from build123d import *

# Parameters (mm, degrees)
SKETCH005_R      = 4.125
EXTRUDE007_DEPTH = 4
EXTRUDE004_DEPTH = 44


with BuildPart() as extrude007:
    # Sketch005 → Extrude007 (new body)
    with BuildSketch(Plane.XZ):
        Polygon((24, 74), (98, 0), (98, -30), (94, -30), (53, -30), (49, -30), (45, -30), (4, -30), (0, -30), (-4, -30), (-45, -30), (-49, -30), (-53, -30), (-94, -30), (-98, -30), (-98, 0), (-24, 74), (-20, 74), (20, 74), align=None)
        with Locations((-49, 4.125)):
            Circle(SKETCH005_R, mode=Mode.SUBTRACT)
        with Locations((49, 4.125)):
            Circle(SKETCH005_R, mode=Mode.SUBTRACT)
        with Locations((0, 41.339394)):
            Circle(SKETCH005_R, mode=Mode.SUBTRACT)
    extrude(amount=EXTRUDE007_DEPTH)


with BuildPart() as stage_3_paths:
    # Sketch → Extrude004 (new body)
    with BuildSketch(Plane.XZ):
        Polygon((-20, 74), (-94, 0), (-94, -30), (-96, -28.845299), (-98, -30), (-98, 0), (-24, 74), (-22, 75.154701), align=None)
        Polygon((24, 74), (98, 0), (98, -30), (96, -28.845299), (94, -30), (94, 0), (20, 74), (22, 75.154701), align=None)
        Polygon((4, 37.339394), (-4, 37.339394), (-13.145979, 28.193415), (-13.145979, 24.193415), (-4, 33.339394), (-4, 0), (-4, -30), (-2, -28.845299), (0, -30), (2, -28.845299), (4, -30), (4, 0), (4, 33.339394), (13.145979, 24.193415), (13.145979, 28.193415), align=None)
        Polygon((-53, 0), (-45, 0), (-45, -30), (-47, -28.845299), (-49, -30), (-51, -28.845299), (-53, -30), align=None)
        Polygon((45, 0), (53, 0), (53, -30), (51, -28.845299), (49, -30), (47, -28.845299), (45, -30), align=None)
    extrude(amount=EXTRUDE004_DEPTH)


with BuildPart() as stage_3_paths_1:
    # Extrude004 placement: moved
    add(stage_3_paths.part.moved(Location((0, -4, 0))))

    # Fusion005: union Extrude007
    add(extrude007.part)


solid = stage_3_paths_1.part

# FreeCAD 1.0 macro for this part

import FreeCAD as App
import Part
import Sketcher

V = App.Vector
Q = App.Units.Quantity


def add_polygon(sketch, points):
    """Adds a closed chain of lines whose ends are joined by coincident constraints."""
    first, n = sketch.GeometryCount, len(points)
    for a, b in zip(points, points[1:] + points[:1]):
        sketch.addGeometry(Part.LineSegment(App.Vector(*a, 0), App.Vector(*b, 0)), False)
    for i in range(n):
        sketch.addConstraint(Sketcher.Constraint("Coincident", first + i, 2, first + (i + 1) % n, 1))

doc = App.newDocument("Part")
params = doc.addObject("Spreadsheet::Sheet", "Params")
for row, (alias, value) in enumerate([
    ("sketch1_diameter", "8.25 mm"),
    ("sketch1_width", "48 mm"),
    ("sketch1_width2", "196 mm"),
    ("sketch1_height", "30 mm"),
    ("pad1_length", "4 mm"),
    ("sketch2_width", "8 mm"),
    ("sketch2_height", "30 mm"),
    ("sketch2_height2", "4 mm"),
    ("pad2_length", "44 mm"),
], start=1):
    params.set(f"A{row}", alias)
    params.set(f"B{row}", "=" + value)
    params.setAlias(f"B{row}", alias)

body = doc.addObject("PartDesign::Body", "Body")

sketch1 = body.newObject("Sketcher::SketchObject", "Sketch")
sketch1.AttachmentSupport = (doc.getObject("XZ_Plane"), [""])
sketch1.MapMode = "FlatFace"
add_polygon(sketch1, [(98, 0), (24, 74), (-24, 74), (-98, 0), (-98, -30), (98, -30)])
sketch1.addGeometry(Part.Circle(V(49, 4.1, 0), V(0, 0, 1), 4.1), False)
sketch1.addGeometry(Part.Circle(V(-49, 4.1, 0), V(0, 0, 1), 4.1), False)
sketch1.addGeometry(Part.Circle(V(0, 41.3, 0), V(0, 0, 1), 4.1), False)
sketch1.addConstraint([
    Sketcher.Constraint("Horizontal", 1),
    Sketcher.Constraint("Vertical", 3),
    Sketcher.Constraint("Horizontal", 4),
    Sketcher.Constraint("Vertical", 5),
    Sketcher.Constraint("Equal", 6, 7),
    Sketcher.Constraint("Equal", 7, 8),
    Sketcher.Constraint("Symmetric", 2, 2, 5, 2, -1, 1),
    Sketcher.Constraint("Symmetric", 6, 3, 7, 3, -2),
    Sketcher.Constraint("PointOnObject", 8, 3, -2),
    Sketcher.Constraint("PointOnObject", 2, 2, -1),
    Sketcher.Constraint("Perpendicular", 0, 2),
    Sketcher.Constraint("Equal", 0, 2),
    Sketcher.Constraint("Diameter", 6, Q("8.25 mm")),
    Sketcher.Constraint("DistanceX", 1, 2, 1, 1, Q("48 mm")),
    Sketcher.Constraint("DistanceX", 4, 1, 4, 2, Q("196 mm")),
    Sketcher.Constraint("DistanceY", 3, 2, 3, 1, Q("30 mm")),
    Sketcher.Constraint("DistanceX", -1, 1, 6, 3, Q("49 mm")),
    Sketcher.Constraint("DistanceY", -1, 1, 6, 3, Q("4.125 mm")),
    Sketcher.Constraint("DistanceY", -1, 1, 8, 3, Q("41.339394 mm")),
])
sketch1.setExpression("Constraints[18]", "Params.sketch1_diameter")
sketch1.setExpression("Constraints[19]", "Params.sketch1_width")
sketch1.setExpression("Constraints[20]", "Params.sketch1_width2")
sketch1.setExpression("Constraints[21]", "Params.sketch1_height")
pad1 = body.newObject("PartDesign::Pad", "Pad")
pad1.Profile = sketch1
pad1.setExpression("Length", "Params.pad1_length")
body2 = doc.addObject("PartDesign::Body", "Body001")
body2.AllowCompound = True

sketch2 = body2.newObject("Sketcher::SketchObject", "Sketch001")
sketch2.AttachmentSupport = (doc.getObject("XZ_Plane001"), [""])
sketch2.MapMode = "FlatFace"
add_polygon(sketch2, [(-94, 0), (-20, 74), (-22, 75.2), (-24, 74), (-98, 0), (-98, -30), (-96, -28.8), (-94, -30)])
add_polygon(sketch2, [(98, 0), (24, 74), (22, 75.2), (20, 74), (94, 0), (94, -30), (96, -28.8), (98, -30)])
add_polygon(sketch2, [(4, 37.3), (-4, 37.3), (-13.1, 28.2), (-13.1, 24.2), (-4, 33.3), (-4, -30), (-2, -28.8), (0, -30), (2, -28.8), (4, -30), (4, 33.3), (13.1, 24.2), (13.1, 28.2)])
add_polygon(sketch2, [(-45, 0), (-53, 0), (-53, -30), (-51, -28.8), (-49, -30), (-47, -28.8), (-45, -30)])
add_polygon(sketch2, [(53, 0), (45, 0), (45, -30), (47, -28.8), (49, -30), (51, -28.8), (53, -30)])
sketch2.addConstraint([
    Sketcher.Constraint("Vertical", 4),
    Sketcher.Constraint("Vertical", 7),
    Sketcher.Constraint("Vertical", 12),
    Sketcher.Constraint("Vertical", 15),
    Sketcher.Constraint("Horizontal", 16),
    Sketcher.Constraint("Vertical", 18),
    Sketcher.Constraint("Vertical", 20),
    Sketcher.Constraint("Vertical", 25),
    Sketcher.Constraint("Vertical", 27),
    Sketcher.Constraint("Horizontal", 29),
    Sketcher.Constraint("Vertical", 30),
    Sketcher.Constraint("Vertical", 35),
    Sketcher.Constraint("Horizontal", 36),
    Sketcher.Constraint("Vertical", 37),
    Sketcher.Constraint("Vertical", 42),
    Sketcher.Constraint("Symmetric", 7, 2, 11, 2, -1, 1),
    Sketcher.Constraint("Symmetric", 3, 2, 15, 2, -1, 1),
    Sketcher.Constraint("Symmetric", 35, 2, 36, 2, -1, 1),
    Sketcher.Constraint("Symmetric", 2, 2, 8, 2, -2),
    Sketcher.Constraint("Symmetric", 1, 2, 9, 2, -2),
    Sketcher.Constraint("Symmetric", 0, 2, 10, 2, -2),
    Sketcher.Constraint("Symmetric", 5, 2, 13, 2, -2),
    Sketcher.Constraint("Symmetric", 21, 2, 23, 2, -2),
    Sketcher.Constraint("Symmetric", 20, 2, 24, 2, -2),
    Sketcher.Constraint("Symmetric", 18, 2, 26, 2, -2),
    Sketcher.Constraint("Symmetric", 33, 2, 38, 2, -2),
    Sketcher.Constraint("Symmetric", 32, 2, 39, 2, -2),
    Sketcher.Constraint("Symmetric", 31, 2, 40, 2, -2),
    Sketcher.Constraint("Symmetric", 30, 2, 41, 2, -2),
    Sketcher.Constraint("PointOnObject", 3, 2, -1),
    Sketcher.Constraint("PointOnObject", 7, 2, -1),
    Sketcher.Constraint("PointOnObject", 22, 2, -2),
    Sketcher.Constraint("PointOnObject", 29, 2, -1),
    Sketcher.Constraint("Parallel", 0, 3),
    Sketcher.Constraint("Parallel", 2, 5),
    Sketcher.Constraint("Parallel", 1, 6),
    Sketcher.Constraint("Perpendicular", 3, 8),
    Sketcher.Constraint("Parallel", 6, 9),
    Sketcher.Constraint("Parallel", 10, 13),
    Sketcher.Constraint("Parallel", 9, 14),
    Sketcher.Constraint("Perpendicular", 11, 17),
    Sketcher.Constraint("Parallel", 17, 19),
    Sketcher.Constraint("Parallel", 13, 21),
    Sketcher.Constraint("Parallel", 14, 22),
    Sketcher.Constraint("Perpendicular", 19, 26),
    Sketcher.Constraint("Parallel", 26, 28),
    Sketcher.Constraint("Parallel", 23, 31),
    Sketcher.Constraint("Parallel", 24, 32),
    Sketcher.Constraint("Parallel", 31, 33),
    Sketcher.Constraint("Parallel", 32, 34),
    Sketcher.Constraint("Parallel", 33, 38),
    Sketcher.Constraint("Horizontal", 0, 2, 2, 2),
    Sketcher.Constraint("Horizontal", 4, 2, 6, 2),
    Sketcher.Constraint("Horizontal", 14, 2, 20, 2),
    Sketcher.Constraint("Horizontal", 13, 2, 21, 2),
    Sketcher.Constraint("Horizontal", 20, 2, 22, 2),
    Sketcher.Constraint("Horizontal", 17, 2, 27, 2),
    Sketcher.Constraint("Horizontal", 24, 2, 30, 2),
    Sketcher.Constraint("Horizontal", 23, 2, 31, 2),
    Sketcher.Constraint("Horizontal", 30, 2, 32, 2),
    Sketcher.Constraint("Horizontal", 31, 2, 33, 2),
    Sketcher.Constraint("Horizontal", 32, 2, 34, 2),
    Sketcher.Constraint("Vertical", 16, 2, 19, 2),
    Sketcher.Constraint("DistanceX", 16, 2, 16, 1, Q("8 mm")),
    Sketcher.Constraint("DistanceY", 4, 2, 4, 1, Q("30 mm")),
    Sketcher.Constraint("DistanceY", 18, 2, 18, 1, Q("4 mm")),
    Sketcher.Constraint("Angle", 1, Q("149.99999 deg")),
    Sketcher.Constraint("DistanceX", 0, 2, -1, 1, Q("20 mm")),
    Sketcher.Constraint("DistanceY", -1, 1, 0, 2, Q("74 mm")),
    Sketcher.Constraint("DistanceX", 29, 2, -1, 1, Q("53 mm")),
    Sketcher.Constraint("DistanceY", 20, 2, 20, 1, Q("63.339394 mm")),
    Sketcher.Constraint("DistanceX", 17, 2, -1, 1, Q("13.145979 mm")),
])
sketch2.setExpression("Constraints[106]", "Params.sketch2_width")
sketch2.setExpression("Constraints[107]", "Params.sketch2_height")
sketch2.setExpression("Constraints[108]", "Params.sketch2_height2")
pad2 = body2.newObject("PartDesign::Pad", "Pad001")
pad2.Profile = sketch2
pad2.setExpression("Length", "Params.pad2_length")
body3 = doc.addObject("PartDesign::Body", "Body002")
body3.AllowCompound = True
doc.recompute()

body2.Placement = App.Placement(V(0, -4, 0), App.Rotation(V(0, 0, 1), 0))
boolean = body3.newObject("PartDesign::Boolean", "Boolean")
boolean.Type = "Fuse"
boolean.addObjects([body2])
doc.recompute()

boolean2 = body3.newObject("PartDesign::Boolean", "Boolean001")
boolean2.Type = "Fuse"
boolean2.addObjects([body])

doc.recompute()
